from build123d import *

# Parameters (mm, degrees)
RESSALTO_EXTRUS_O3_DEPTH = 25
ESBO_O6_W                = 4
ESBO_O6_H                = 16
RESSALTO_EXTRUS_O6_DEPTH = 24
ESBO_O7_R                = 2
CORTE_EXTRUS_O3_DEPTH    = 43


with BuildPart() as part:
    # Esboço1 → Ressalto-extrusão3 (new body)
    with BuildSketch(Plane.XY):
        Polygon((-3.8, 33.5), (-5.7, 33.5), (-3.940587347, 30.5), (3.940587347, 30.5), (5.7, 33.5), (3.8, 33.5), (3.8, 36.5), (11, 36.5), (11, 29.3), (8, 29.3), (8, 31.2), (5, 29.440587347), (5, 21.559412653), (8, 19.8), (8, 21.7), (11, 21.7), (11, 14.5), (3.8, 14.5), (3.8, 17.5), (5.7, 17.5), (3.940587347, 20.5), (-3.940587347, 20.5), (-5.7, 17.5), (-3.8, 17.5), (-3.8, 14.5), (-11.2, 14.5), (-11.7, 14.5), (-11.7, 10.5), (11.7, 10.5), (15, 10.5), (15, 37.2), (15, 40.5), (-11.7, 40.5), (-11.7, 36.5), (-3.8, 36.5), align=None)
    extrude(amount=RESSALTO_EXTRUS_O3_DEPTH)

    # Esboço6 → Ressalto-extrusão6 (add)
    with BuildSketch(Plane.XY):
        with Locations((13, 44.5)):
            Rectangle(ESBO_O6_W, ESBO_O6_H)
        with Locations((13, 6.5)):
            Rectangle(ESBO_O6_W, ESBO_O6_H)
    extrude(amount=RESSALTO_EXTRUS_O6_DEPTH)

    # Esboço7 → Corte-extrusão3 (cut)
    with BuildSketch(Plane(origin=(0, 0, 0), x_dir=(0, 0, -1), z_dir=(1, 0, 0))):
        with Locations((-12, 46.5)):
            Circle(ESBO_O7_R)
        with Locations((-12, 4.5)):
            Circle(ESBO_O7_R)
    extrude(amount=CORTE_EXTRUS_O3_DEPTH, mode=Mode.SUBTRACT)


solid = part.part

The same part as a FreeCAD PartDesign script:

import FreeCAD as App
import Part
import Sketcher
Q = App.Units.Quantity


def add_polygon(sketch, points):
    """Adds a closed chain of lines whose ends are joined by coincident constraints."""
    first, n = sketch.GeometryCount, len(points)
    for a, b in zip(points, points[1:] + points[:1]):
        sketch.addGeometry(Part.LineSegment(App.Vector(*a, 0), App.Vector(*b, 0)), False)
    for i in range(n):
        sketch.addConstraint(Sketcher.Constraint("Coincident", first + i, 2, first + (i + 1) % n, 1))

doc = App.newDocument("Part")
params = doc.addObject("Spreadsheet::Sheet", "Params")
for row, (alias, value) in enumerate([
    ("sketch1_width", "3 mm"),
    ("sketch1_height", "4 mm"),
    ("sketch1_height2", "30 mm"),
    ("sketch1_width2", "1.9 mm"),
    ("sketch1_width3", "7.2 mm"),
    ("pad1_length", "25 mm"),
    ("sketch2_width", "4 mm"),
    ("sketch2_height", "16 mm"),
    ("pad2_length", "24 mm"),
    ("sketch3_diameter", "4 mm"),
    ("pocket1_length", "43 mm"),
], start=1):
    params.set(f"A{row}", alias)
    params.set(f"B{row}", "=" + value)
    params.setAlias(f"B{row}", alias)

body = doc.addObject("PartDesign::Body", "Body")

sketch1 = body.newObject("Sketcher::SketchObject", "Sketch")
sketch1.AttachmentSupport = (doc.getObject("XY_Plane"), [""])
sketch1.MapMode = "FlatFace"
add_polygon(sketch1, [(-3.8, 33.5), (-5.7, 33.5), (-3.9, 30.5), (3.9, 30.5), (5.7, 33.5), (3.8, 33.5), (3.8, 36.5), (11, 36.5), (11, 29.3), (8, 29.3), (8, 31.2), (5, 29.4), (5, 21.6), (8, 19.8), (8, 21.7), (11, 21.7), (11, 14.5), (3.8, 14.5), (3.8, 17.5), (5.7, 17.5), (3.9, 20.5), (-3.9, 20.5), (-5.7, 17.5), (-3.8, 17.5), (-3.8, 14.5), (-11.7, 14.5), (-11.7, 10.5), (15, 10.5), (15, 40.5), (-11.7, 40.5), (-11.7, 36.5), (-3.8, 36.5)])
sketch1.addConstraint([
    Sketcher.Constraint("Horizontal", 0),
    Sketcher.Constraint("Horizontal", 2),
    Sketcher.Constraint("Horizontal", 4),
    Sketcher.Constraint("Vertical", 5),
    Sketcher.Constraint("Horizontal", 6),
    Sketcher.Constraint("Vertical", 7),
    Sketcher.Constraint("Horizontal", 8),
    Sketcher.Constraint("Vertical", 9),
    Sketcher.Constraint("Vertical", 11),
    Sketcher.Constraint("Vertical", 13),
    Sketcher.Constraint("Horizontal", 14),
    Sketcher.Constraint("Vertical", 15),
    Sketcher.Constraint("Horizontal", 16),
    Sketcher.Constraint("Vertical", 17),
    Sketcher.Constraint("Horizontal", 18),
    Sketcher.Constraint("Horizontal", 20),
    Sketcher.Constraint("Horizontal", 22),
    Sketcher.Constraint("Vertical", 23),
    Sketcher.Constraint("Horizontal", 24),
    Sketcher.Constraint("Vertical", 25),
    Sketcher.Constraint("Horizontal", 26),
    Sketcher.Constraint("Vertical", 27),
    Sketcher.Constraint("Horizontal", 28),
    Sketcher.Constraint("Vertical", 29),
    Sketcher.Constraint("Horizontal", 30),
    Sketcher.Constraint("Vertical", 31),
    Sketcher.Constraint("Symmetric", 0, 2, 3, 2, -2),
    Sketcher.Constraint("Symmetric", 18, 2, 21, 2, -2),
    Sketcher.Constraint("Symmetric", 16, 2, 23, 2, -2),
    Sketcher.Constraint("Symmetric", 5, 2, 30, 2, -2),
    Sketcher.Constraint("Perpendicular", 1, 10),
    Sketcher.Constraint("Perpendicular", 3, 12),
    Sketcher.Constraint("Perpendicular", 10, 19),
    Sketcher.Constraint("Perpendicular", 12, 21),
    Sketcher.Constraint("Vertical", 9, 2, 12, 2),
    Sketcher.Constraint("Vertical", 7, 2, 14, 2),
    Sketcher.Constraint("Vertical", 5, 2, 16, 2),
    Sketcher.Constraint("Vertical", 3, 2, 18, 2),
    Sketcher.Constraint("Vertical", 2, 2, 19, 2),
    Sketcher.Constraint("Vertical", 1, 2, 20, 2),
    Sketcher.Constraint("Vertical", 25, 2, 28, 2),
    Sketcher.Constraint("Equal", 14, 5),
    Sketcher.Constraint("Equal", 16, 7),
    Sketcher.Constraint("Equal", 22, 9),
    Sketcher.Constraint("Equal", 20, 11),
    Sketcher.Constraint("Equal", 9, 13),
    Sketcher.Constraint("Equal", 7, 15),
    Sketcher.Constraint("Equal", 5, 17),
    Sketcher.Constraint("Equal", 25, 29),
    Sketcher.Constraint("Equal", 3, 10),
    Sketcher.Constraint("DistanceX", 8, 2, 8, 1, Q("3 mm")),
    Sketcher.Constraint("DistanceY", 25, 2, 25, 1, Q("4 mm")),
    Sketcher.Constraint("DistanceY", 27, 1, 27, 2, Q("30 mm")),
    Sketcher.Constraint("DistanceX", 0, 2, 0, 1, Q("1.9 mm")),
    Sketcher.Constraint("DistanceX", 6, 1, 6, 2, Q("7.2 mm")),
    Sketcher.Constraint("DistanceX", 24, 2, 24, 1, Q("7.9 mm")),
    Sketcher.Constraint("DistanceX", 26, 1, 26, 2, Q("26.7 mm")),
    Sketcher.Constraint("DistanceX", -1, 1, 10, 2, Q("5 mm")),
    Sketcher.Constraint("DistanceY", -1, 1, 0, 2, Q("33.5 mm")),
    Sketcher.Constraint("DistanceX", 2, 1, 2, 2, Q("7.881175 mm")),
])
sketch1.setExpression("Constraints[82]", "Params.sketch1_width")
sketch1.setExpression("Constraints[83]", "Params.sketch1_height")
sketch1.setExpression("Constraints[84]", "Params.sketch1_height2")
sketch1.setExpression("Constraints[85]", "Params.sketch1_width2")
sketch1.setExpression("Constraints[86]", "Params.sketch1_width3")
pad1 = body.newObject("PartDesign::Pad", "Pad")
pad1.Profile = sketch1
pad1.setExpression("Length", "Params.pad1_length")

sketch2 = body.newObject("Sketcher::SketchObject", "Sketch001")
sketch2.AttachmentSupport = (doc.getObject("XY_Plane"), [""])
sketch2.MapMode = "FlatFace"
add_polygon(sketch2, [(11, 52.5), (11, 36.5), (15, 36.5), (15, 52.5)])
add_polygon(sketch2, [(11, 14.5), (11, -1.5), (15, -1.5), (15, 14.5)])
sketch2.addConstraint([
    Sketcher.Constraint("Vertical", 0),
    Sketcher.Constraint("Horizontal", 1),
    Sketcher.Constraint("Vertical", 2),
    Sketcher.Constraint("Horizontal", 3),
    Sketcher.Constraint("Vertical", 4),
    Sketcher.Constraint("Horizontal", 5),
    Sketcher.Constraint("Vertical", 6),
    Sketcher.Constraint("Horizontal", 7),
    Sketcher.Constraint("Vertical", 3, 2, 4, 2),
    Sketcher.Constraint("Vertical", 2, 2, 5, 2),
    Sketcher.Constraint("Equal", 2, 4),
    Sketcher.Constraint("DistanceX", 1, 1, 1, 2, Q("4 mm")),
    Sketcher.Constraint("DistanceY", 0, 2, 0, 1, Q("16 mm")),
    Sketcher.Constraint("DistanceX", -1, 1, 0, 2, Q("11 mm")),
    Sketcher.Constraint("DistanceY", 4, 2, 0, 2, Q("38 mm")),
    Sketcher.Constraint("DistanceY", -1, 1, 0, 2, Q("36.5 mm")),
])
sketch2.setExpression("Constraints[19]", "Params.sketch2_width")
sketch2.setExpression("Constraints[20]", "Params.sketch2_height")
pad2 = body.newObject("PartDesign::Pad", "Pad001")
pad2.Profile = sketch2
pad2.setExpression("Length", "Params.pad2_length")

sketch3 = body.newObject("Sketcher::SketchObject", "Sketch002")
sketch3.AttachmentSupport = (doc.getObject("YZ_Plane"), [""])
sketch3.MapMode = "FlatFace"
sketch3.addGeometry([
    Part.Circle(App.Vector(46.5, 12, 0), App.Vector(0, 0, 1), 2),
    Part.Circle(App.Vector(4.5, 12, 0), App.Vector(0, 0, 1), 2),
], False)
sketch3.addConstraint([
    Sketcher.Constraint("Equal", 0, 1),
    Sketcher.Constraint("Horizontal", 0, 3, 1, 3),
    Sketcher.Constraint("Diameter", 0, Q("4 mm")),
    Sketcher.Constraint("DistanceY", -1, 1, 0, 3, Q("12 mm")),
    Sketcher.Constraint("DistanceX", 1, 3, 0, 3, Q("42 mm")),
    Sketcher.Constraint("DistanceX", -1, 1, 0, 3, Q("46.5 mm")),
])
sketch3.setExpression("Constraints[2]", "Params.sketch3_diameter")
pocket1 = body.newObject("PartDesign::Pocket", "Pocket")
pocket1.Profile = sketch3
pocket1.setExpression("Length", "Params.pocket1_length")
pocket1.Reversed = True

doc.recompute()
